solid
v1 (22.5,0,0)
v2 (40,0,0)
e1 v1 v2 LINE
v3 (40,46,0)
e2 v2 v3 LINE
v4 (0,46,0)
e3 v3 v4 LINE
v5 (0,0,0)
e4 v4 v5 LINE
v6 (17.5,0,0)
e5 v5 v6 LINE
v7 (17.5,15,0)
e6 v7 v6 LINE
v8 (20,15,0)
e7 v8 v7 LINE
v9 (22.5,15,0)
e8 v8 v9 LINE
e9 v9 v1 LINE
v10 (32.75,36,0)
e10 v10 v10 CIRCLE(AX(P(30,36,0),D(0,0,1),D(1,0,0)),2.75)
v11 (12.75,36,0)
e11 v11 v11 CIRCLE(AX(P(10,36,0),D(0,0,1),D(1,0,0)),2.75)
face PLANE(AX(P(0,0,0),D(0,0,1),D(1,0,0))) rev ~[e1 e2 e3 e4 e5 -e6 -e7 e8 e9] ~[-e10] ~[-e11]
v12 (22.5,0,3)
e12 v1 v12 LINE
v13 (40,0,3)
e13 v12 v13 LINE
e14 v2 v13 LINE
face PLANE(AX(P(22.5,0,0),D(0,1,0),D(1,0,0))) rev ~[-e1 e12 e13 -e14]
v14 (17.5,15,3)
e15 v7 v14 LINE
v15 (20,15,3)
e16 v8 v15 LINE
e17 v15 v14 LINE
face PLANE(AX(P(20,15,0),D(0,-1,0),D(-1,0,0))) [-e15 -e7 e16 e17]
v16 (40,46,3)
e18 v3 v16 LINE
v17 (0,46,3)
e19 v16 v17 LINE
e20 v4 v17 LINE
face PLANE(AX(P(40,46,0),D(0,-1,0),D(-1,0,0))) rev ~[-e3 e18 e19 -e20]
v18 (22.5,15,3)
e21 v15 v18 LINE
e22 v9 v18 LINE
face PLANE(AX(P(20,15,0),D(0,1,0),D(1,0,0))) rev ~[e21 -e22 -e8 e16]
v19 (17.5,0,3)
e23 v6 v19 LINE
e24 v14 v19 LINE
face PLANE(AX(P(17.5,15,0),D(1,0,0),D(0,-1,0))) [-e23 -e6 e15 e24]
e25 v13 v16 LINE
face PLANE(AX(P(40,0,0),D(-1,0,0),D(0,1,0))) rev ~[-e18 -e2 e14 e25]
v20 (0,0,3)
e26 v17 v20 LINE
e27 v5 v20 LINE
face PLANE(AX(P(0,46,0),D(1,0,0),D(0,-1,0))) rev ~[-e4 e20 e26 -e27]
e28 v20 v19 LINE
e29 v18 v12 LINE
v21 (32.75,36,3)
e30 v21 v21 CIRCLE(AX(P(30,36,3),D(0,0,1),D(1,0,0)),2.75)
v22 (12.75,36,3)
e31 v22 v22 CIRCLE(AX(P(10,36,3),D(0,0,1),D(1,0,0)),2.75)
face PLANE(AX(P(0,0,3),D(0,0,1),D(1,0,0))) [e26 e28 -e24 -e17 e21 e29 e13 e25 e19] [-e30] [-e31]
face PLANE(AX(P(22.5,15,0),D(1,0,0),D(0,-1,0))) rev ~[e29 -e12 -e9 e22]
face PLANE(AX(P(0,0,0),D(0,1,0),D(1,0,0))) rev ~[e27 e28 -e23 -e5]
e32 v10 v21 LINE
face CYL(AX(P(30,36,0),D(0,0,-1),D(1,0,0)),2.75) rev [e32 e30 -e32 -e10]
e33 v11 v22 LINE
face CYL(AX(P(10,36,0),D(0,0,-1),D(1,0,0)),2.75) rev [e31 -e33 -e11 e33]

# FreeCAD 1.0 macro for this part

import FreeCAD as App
import Part
import Sketcher
from FreeCAD import Vector


def add_polygon(sketch, points):
    """Adds a closed chain of lines whose ends are joined by coincident constraints."""
    first, n = sketch.GeometryCount, len(points)
    for a, b in zip(points, points[1:] + points[:1]):
        sketch.addGeometry(Part.LineSegment(App.Vector(*a, 0), App.Vector(*b, 0)), False)
    for i in range(n):
        sketch.addConstraint(Sketcher.Constraint("Coincident", first + i, 2, first + (i + 1) % n, 1))

doc = App.newDocument("Part")
params = doc.addObject("Spreadsheet::Sheet", "Params")
for row, (alias, value) in enumerate([
    ("sketch1_diameter", "5.5 mm"),
    ("sketch1_width", "40 mm"),
    ("sketch1_height", "46 mm"),
    ("sketch1_height2", "15 mm"),
    ("sketch1_width2", "5 mm"),
    ("pad1_length", "3 mm"),
], start=1):
    params.set(f"A{row}", alias)
    params.set(f"B{row}", "=" + value)
    params.setAlias(f"B{row}", alias)

body = doc.addObject("PartDesign::Body", "Body")

# Sketch on XY plane
sketch1 = body.newObject("Sketcher::SketchObject", "Sketch")
sketch1.AttachmentSupport = (doc.getObject("XY_Plane"), [""])
sketch1.MapMode = "FlatFace"
add_polygon(sketch1, [(0, 46), (0, 0), (17.5, 0), (17.5, 15), (22.5, 15), (22.5, 0), (40, 0), (40, 46)])  # lines 0-7
sketch1.addGeometry(Part.Circle(Vector(10, 36, 0), Vector(0, 0, 1), 2.8), False)  # 8
sketch1.addGeometry(Part.Circle(Vector(30, 36, 0), Vector(0, 0, 1), 2.8), False)  # 9
sketch1.addConstraint([
    Sketcher.Constraint("Vertical", 0),
    Sketcher.Constraint("Horizontal", 1),
    Sketcher.Constraint("Vertical", 2),
    Sketcher.Constraint("Horizontal", 3),
    Sketcher.Constraint("Vertical", 4),
    Sketcher.Constraint("Horizontal", 5),
    Sketcher.Constraint("Vertical", 6),
    Sketcher.Constraint("Horizontal", 7),
    Sketcher.Constraint("Coincident", 0, 2, -1, 1),
    Sketcher.Constraint("Equal", 8, 9),
    Sketcher.Constraint("PointOnObject", 4, 2, -1),
    Sketcher.Constraint("Horizontal", 8, 3, 9, 3),
    Sketcher.Constraint("Equal", 1, 5),
    Sketcher.Constraint("Diameter", 8, 5.5),
    Sketcher.Constraint("DistanceX", 7, 2, 7, 1, 40.0),
    Sketcher.Constraint("DistanceY", 0, 2, 0, 1, 46.0),
    Sketcher.Constraint("DistanceY", 2, 1, 2, 2, 15.0),
    Sketcher.Constraint("DistanceX", -1, 1, 8, 3, 10.0),
    Sketcher.Constraint("DistanceX", 9, 3, 5, 2, 10.0),
    Sketcher.Constraint("DistanceY", 9, 3, 6, 2, 10.0),
    Sketcher.Constraint("DistanceX", 3, 1, 3, 2, 5.0),
])
sketch1.setExpression("Constraints[21]", "Params.sketch1_diameter")
sketch1.setExpression("Constraints[22]", "Params.sketch1_width")
sketch1.setExpression("Constraints[23]", "Params.sketch1_height")
sketch1.setExpression("Constraints[24]", "Params.sketch1_height2")
sketch1.setExpression("Constraints[28]", "Params.sketch1_width2")
pad1 = body.newObject("PartDesign::Pad", "Pad")
pad1.Profile = sketch1
pad1.setExpression("Length", "Params.pad1_length")

doc.recompute()
